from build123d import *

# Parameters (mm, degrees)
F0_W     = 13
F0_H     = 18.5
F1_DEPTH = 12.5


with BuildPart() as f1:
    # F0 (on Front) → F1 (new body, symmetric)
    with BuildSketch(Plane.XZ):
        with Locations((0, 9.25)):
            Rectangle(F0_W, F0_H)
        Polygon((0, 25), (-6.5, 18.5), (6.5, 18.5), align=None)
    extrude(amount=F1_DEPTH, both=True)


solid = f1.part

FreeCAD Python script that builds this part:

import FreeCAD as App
import Part
import Sketcher
from FreeCAD import Vector
Q = App.Units.Quantity


def add_polygon(sketch, points):
    """Adds a closed chain of lines whose ends are joined by coincident constraints."""
    first, n = sketch.GeometryCount, len(points)
    for a, b in zip(points, points[1:] + points[:1]):
        sketch.addGeometry(Part.LineSegment(App.Vector(*a, 0), App.Vector(*b, 0)), False)
    for i in range(n):
        sketch.addConstraint(Sketcher.Constraint("Coincident", first + i, 2, first + (i + 1) % n, 1))

doc = App.newDocument("Part")
params = doc.addObject("Spreadsheet::Sheet", "Params")
for row, (alias, value) in enumerate([
    ("sketch1_width", "13 mm"),
    ("sketch1_height", "18.5 mm"),
    ("pad1_length", "25 mm"),
], start=1):
    params.set(f"A{row}", alias)
    params.set(f"B{row}", "=" + value)
    params.setAlias(f"B{row}", alias)

body = doc.addObject("PartDesign::Body", "Body")

# Sketch on XZ plane
sketch1 = body.newObject("Sketcher::SketchObject", "Sketch")
sketch1.AttachmentSupport = (doc.getObject("XZ_Plane"), [""])
sketch1.MapMode = "FlatFace"
add_polygon(sketch1, [(-6.5, 18.5), (-6.5, 0), (6.5, 0), (6.5, 18.5), (0, 25)])  # lines 0-4
sketch1.addConstraint([
    Sketcher.Constraint("Vertical", 0),
    Sketcher.Constraint("Horizontal", 1),
    Sketcher.Constraint("Vertical", 2),
    Sketcher.Constraint("Symmetric", 0, 2, 1, 2, -1, 1),
    Sketcher.Constraint("PointOnObject", 3, 2, -2),
    Sketcher.Constraint("Perpendicular", 3, 4),
    Sketcher.Constraint("Horizontal", 2, 2, 4, 2),
    Sketcher.Constraint("DistanceX", 1, 1, 1, 2, Q("13 mm")),
    Sketcher.Constraint("DistanceY", 0, 2, 0, 1, Q("18.5 mm")),
])
sketch1.setExpression("Constraints[12]", "Params.sketch1_width")
sketch1.setExpression("Constraints[13]", "Params.sketch1_height")
pad1 = body.newObject("PartDesign::Pad", "Pad")
pad1.Profile = sketch1
pad1.setExpression("Length", "Params.pad1_length")
pad1.Midplane = True

doc.recompute()
